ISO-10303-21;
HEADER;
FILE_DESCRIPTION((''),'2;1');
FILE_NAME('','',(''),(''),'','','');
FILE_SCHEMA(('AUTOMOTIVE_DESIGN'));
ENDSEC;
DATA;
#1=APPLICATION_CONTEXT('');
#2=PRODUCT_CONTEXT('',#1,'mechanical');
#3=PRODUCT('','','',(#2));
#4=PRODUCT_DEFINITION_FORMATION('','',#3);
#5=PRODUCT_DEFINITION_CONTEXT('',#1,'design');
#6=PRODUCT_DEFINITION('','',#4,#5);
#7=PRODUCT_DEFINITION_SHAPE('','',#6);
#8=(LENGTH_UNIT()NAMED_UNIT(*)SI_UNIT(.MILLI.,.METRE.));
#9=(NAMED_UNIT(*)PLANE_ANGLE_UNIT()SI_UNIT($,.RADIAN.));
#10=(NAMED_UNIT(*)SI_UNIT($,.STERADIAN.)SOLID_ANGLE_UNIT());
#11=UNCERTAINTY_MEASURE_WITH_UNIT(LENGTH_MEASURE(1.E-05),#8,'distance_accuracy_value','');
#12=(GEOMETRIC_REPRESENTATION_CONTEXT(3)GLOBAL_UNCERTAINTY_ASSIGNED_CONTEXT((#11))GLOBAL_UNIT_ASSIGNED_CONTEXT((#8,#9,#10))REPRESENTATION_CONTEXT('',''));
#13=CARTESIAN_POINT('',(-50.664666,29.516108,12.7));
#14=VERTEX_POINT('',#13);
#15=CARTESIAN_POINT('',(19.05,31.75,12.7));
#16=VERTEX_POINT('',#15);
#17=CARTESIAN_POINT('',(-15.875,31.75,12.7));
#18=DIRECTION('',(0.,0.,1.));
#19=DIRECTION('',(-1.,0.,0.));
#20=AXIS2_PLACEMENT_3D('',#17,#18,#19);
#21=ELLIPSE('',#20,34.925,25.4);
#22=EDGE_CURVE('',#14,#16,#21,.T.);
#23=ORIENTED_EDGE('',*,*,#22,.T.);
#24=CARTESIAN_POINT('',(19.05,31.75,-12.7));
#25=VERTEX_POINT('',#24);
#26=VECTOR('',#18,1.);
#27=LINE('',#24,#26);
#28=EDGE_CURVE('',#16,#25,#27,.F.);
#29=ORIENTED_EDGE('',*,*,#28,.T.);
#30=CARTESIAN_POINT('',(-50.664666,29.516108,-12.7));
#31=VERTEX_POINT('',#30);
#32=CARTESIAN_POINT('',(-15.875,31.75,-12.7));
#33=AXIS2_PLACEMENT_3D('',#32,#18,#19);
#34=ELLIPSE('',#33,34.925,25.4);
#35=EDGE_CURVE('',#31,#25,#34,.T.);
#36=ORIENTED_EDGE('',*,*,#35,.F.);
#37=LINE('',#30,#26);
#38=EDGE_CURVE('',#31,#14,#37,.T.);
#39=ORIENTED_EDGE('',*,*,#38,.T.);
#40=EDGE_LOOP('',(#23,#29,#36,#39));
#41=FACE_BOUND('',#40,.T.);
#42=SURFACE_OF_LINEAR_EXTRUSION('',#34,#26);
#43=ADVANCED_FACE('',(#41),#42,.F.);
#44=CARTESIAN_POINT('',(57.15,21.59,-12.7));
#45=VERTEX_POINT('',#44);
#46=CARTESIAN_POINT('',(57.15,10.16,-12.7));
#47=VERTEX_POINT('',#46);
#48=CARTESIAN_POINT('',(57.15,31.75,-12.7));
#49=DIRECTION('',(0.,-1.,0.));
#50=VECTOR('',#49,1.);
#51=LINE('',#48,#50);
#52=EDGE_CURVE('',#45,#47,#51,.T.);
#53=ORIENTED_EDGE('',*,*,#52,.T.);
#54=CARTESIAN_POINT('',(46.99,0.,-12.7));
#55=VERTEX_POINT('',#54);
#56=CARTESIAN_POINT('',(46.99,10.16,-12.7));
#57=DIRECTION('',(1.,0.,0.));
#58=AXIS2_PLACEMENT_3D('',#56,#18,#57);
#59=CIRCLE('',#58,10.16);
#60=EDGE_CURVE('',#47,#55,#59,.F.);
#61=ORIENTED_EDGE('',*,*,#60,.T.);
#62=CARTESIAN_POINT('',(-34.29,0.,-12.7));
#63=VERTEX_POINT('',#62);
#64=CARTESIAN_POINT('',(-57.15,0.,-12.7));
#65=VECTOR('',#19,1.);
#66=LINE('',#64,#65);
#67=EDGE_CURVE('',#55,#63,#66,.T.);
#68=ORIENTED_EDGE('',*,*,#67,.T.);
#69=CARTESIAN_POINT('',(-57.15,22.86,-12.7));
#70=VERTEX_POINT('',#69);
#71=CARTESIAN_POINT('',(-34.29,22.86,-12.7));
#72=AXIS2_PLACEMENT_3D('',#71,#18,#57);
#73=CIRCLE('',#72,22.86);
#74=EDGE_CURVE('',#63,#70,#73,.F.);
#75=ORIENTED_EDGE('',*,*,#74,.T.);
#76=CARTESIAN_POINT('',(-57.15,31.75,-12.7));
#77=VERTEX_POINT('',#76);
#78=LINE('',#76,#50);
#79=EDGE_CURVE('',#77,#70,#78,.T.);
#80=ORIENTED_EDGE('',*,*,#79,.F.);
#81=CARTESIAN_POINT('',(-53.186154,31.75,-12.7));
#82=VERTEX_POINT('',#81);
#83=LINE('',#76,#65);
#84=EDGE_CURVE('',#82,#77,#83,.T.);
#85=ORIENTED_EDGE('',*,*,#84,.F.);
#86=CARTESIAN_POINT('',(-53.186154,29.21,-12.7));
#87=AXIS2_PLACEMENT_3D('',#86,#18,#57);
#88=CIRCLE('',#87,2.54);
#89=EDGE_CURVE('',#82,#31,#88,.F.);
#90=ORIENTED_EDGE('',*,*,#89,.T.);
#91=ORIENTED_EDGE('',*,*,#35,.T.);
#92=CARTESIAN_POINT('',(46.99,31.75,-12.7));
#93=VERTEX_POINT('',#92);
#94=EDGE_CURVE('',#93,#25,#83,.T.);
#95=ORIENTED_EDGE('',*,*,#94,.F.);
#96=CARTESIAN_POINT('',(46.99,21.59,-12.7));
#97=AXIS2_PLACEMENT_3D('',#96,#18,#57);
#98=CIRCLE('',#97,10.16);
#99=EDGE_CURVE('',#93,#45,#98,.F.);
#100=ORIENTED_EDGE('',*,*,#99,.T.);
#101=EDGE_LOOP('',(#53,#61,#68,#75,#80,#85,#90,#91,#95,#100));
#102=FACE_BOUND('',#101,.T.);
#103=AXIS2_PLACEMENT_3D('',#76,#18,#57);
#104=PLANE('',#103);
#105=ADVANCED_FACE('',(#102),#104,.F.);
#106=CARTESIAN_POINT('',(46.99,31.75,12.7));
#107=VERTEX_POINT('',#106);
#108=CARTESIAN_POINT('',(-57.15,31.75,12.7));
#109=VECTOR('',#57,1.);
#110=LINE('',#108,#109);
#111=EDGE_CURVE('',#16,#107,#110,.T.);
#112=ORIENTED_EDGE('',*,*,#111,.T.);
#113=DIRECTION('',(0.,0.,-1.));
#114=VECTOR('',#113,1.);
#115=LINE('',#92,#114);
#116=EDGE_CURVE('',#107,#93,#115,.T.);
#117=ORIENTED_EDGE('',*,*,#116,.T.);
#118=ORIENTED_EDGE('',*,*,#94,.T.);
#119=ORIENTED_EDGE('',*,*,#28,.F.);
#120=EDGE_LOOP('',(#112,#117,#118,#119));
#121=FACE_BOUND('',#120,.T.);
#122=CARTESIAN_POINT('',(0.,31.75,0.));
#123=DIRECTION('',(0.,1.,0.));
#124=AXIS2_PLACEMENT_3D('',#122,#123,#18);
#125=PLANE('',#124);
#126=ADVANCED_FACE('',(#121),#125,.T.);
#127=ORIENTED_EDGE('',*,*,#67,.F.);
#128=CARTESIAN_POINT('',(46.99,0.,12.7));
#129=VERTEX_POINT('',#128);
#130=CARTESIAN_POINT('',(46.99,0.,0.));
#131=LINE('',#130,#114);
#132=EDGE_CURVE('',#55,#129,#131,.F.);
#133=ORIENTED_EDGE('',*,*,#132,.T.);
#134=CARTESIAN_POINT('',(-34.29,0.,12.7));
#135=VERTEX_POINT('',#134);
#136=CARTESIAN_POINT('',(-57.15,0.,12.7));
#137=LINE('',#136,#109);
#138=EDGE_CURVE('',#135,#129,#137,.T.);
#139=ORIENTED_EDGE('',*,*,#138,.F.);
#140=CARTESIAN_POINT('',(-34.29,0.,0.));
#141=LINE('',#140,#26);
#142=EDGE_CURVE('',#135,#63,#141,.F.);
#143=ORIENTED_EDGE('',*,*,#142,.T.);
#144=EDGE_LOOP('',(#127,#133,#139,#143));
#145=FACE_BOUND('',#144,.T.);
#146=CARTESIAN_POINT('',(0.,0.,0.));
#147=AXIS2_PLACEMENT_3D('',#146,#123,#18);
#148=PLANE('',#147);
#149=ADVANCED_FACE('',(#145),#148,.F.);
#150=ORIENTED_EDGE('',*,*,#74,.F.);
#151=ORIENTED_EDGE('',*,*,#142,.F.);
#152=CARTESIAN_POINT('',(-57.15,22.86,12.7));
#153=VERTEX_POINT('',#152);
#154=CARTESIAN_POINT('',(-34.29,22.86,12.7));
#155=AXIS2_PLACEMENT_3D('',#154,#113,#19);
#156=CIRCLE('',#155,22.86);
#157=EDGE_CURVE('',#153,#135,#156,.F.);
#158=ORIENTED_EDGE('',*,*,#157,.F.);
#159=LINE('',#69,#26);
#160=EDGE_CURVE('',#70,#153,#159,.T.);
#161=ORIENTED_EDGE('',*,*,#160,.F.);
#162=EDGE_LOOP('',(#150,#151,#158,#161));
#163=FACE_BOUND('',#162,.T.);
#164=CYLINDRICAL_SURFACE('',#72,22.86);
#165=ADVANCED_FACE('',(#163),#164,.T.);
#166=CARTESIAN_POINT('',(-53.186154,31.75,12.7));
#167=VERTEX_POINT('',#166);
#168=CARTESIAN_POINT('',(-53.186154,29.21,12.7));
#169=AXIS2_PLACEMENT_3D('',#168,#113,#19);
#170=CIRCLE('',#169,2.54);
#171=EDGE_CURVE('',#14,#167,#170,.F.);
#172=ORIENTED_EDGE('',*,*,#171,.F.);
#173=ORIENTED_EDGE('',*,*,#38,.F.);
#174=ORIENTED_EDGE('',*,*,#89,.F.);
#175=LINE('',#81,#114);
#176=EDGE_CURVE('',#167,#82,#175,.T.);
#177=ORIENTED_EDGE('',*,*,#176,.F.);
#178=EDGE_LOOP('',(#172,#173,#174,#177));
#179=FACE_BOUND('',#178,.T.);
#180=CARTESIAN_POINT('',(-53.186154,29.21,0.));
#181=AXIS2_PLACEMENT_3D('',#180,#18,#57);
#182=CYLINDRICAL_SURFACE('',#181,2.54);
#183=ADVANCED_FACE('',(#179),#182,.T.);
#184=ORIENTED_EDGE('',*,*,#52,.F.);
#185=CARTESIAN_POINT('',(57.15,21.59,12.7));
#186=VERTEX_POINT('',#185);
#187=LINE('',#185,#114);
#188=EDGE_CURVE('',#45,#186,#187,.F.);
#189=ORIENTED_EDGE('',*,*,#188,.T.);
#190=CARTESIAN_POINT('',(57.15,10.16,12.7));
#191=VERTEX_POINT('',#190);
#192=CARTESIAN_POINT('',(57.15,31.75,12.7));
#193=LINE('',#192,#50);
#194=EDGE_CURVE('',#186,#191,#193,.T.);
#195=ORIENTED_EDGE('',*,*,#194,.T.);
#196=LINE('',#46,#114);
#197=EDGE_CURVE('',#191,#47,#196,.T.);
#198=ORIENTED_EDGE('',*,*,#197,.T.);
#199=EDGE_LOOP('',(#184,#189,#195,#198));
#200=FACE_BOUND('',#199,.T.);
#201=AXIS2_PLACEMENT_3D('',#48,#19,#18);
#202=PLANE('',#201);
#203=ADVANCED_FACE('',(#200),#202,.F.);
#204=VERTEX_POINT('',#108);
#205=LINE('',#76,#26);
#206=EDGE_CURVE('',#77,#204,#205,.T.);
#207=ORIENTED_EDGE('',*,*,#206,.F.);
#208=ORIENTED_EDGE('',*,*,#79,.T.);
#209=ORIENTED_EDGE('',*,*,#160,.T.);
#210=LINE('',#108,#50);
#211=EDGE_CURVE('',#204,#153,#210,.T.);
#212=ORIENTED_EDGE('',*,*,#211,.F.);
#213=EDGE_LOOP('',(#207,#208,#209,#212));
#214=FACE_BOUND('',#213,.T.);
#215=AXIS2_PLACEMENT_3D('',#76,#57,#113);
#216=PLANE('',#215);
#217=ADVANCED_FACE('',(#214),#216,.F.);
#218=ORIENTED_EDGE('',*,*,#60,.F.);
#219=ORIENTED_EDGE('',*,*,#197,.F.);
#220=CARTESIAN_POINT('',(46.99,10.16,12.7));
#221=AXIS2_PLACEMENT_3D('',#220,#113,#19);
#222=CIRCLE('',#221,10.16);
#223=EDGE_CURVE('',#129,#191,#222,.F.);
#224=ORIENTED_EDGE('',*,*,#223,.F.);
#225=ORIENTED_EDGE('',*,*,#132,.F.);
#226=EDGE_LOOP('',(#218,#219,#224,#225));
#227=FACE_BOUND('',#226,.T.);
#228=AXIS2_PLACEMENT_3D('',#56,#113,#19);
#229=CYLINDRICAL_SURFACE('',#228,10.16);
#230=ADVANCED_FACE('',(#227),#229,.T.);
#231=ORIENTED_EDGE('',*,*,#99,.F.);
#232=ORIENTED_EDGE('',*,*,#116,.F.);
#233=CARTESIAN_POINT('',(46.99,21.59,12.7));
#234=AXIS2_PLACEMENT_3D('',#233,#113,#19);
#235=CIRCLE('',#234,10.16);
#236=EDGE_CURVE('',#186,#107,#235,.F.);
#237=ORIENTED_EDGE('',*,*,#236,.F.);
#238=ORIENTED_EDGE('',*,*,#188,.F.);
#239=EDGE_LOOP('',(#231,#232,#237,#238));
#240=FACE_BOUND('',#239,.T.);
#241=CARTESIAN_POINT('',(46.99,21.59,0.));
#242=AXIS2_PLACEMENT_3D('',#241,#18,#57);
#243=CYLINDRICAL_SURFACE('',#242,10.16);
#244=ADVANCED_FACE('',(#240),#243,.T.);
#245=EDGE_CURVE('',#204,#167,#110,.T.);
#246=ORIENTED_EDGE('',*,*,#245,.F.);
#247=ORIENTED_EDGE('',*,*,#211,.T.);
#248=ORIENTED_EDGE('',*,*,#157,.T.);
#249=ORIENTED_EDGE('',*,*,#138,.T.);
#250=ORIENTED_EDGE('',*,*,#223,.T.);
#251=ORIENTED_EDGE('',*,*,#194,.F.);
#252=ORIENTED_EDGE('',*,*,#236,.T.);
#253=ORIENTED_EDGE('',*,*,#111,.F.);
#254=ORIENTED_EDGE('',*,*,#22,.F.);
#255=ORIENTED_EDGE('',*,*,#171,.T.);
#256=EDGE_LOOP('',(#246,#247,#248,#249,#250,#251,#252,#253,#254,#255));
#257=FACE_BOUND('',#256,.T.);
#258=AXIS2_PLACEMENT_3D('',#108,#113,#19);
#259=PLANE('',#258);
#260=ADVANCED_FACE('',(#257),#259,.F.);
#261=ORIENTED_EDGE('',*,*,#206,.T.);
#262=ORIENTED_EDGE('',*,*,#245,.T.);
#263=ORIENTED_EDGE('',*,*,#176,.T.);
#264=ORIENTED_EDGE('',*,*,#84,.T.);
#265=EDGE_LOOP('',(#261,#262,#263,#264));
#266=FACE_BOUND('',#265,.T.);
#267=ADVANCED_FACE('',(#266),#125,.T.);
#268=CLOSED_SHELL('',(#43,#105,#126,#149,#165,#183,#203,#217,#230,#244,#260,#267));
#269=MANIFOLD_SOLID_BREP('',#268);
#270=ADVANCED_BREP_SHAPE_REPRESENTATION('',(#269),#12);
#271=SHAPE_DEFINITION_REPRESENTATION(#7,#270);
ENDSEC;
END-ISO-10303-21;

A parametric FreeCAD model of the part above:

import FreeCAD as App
import Part
import Sketcher

V = App.Vector
Q = App.Units.Quantity


def edges_at(feature, points):
    """Names of the edges that pass closest to the given points."""
    edges = feature.Shape.Edges
    near = lambda p: min(range(len(edges)), key=lambda i: edges[i].distToShape(Part.Vertex(*p))[0])
    return sorted({f"Edge{near(p) + 1}" for p in points})

doc = App.newDocument("Part")
body = doc.addObject("PartDesign::Body", "Body")

# Sketch on XZ plane
sketch1 = doc.addObject("Sketcher::SketchObject", "Sketch")
body.addObject(sketch1)
sketch1.AttachmentSupport = (doc.XZ_Plane, [""])
sketch1.MapMode = "FlatFace"
sketch1.addGeometry([
    Part.LineSegment(V(-57, -13, 0), V(-57, 13, 0)),
    Part.LineSegment(V(-57, 13, 0), V(57, 13, 0)),
    Part.LineSegment(V(57, 13, 0), V(57, -13, 0)),
    Part.LineSegment(V(57, -13, 0), V(-57, -13, 0)),
], False)
sketch1.addConstraint([
    Sketcher.Constraint("Coincident", 0, 2, 1, 1),
    Sketcher.Constraint("Coincident", 1, 2, 2, 1),
    Sketcher.Constraint("Coincident", 2, 2, 3, 1),
    Sketcher.Constraint("Coincident", 3, 2, 0, 1),
    Sketcher.Constraint("Vertical", 0),
    Sketcher.Constraint("Horizontal", 1),
    Sketcher.Constraint("Vertical", 2),
    Sketcher.Constraint("Horizontal", 3),
    Sketcher.Constraint("Symmetric", 0, 2, 2, 2, -1, 1),
    Sketcher.Constraint("DistanceY", 0, 1, 0, 2, Q("1 in")),
    Sketcher.Constraint("DistanceX", 1, 1, 1, 2, Q("4.5 in")),
])
pad1 = doc.addObject("PartDesign::Pad", "Pad")
body.addObject(pad1)
pad1.Profile = sketch1
pad1.Length = Q("1.25 in")
pad1.Reversed = True

# Sketch on XY plane
sketch2 = doc.addObject("Sketcher::SketchObject", "Sketch001")
body.addObject(sketch2)
sketch2.AttachmentSupport = (doc.XY_Plane, [""])
sketch2.MapMode = "FlatFace"
sketch2.AttachmentOffset = App.Placement(V(0, 0, 0.5 * 25.4), App.Rotation())
sketch2.addGeometry(Part.Ellipse(V(-50.8, 31.75, 0), V(-15.875, 6.35, 0), V(-15.875, 31.75, 0)), False)
sketch2.addConstraint(Sketcher.Constraint("Block", 0))
pocket1 = doc.addObject("PartDesign::Pocket", "Pocket")
body.addObject(pocket1)
pocket1.Profile = sketch2
pocket1.Type = "ThroughAll"
doc.recompute()

fillet = doc.addObject("PartDesign::Fillet", "Fillet")
body.addObject(fillet)
fillet.Base = (pocket1, edges_at(pocket1, [(-50.8, 31.75, 0)]))
fillet.Radius = Q("0.1 in")
doc.recompute()

fillet2 = doc.addObject("PartDesign::Fillet", "Fillet001")
body.addObject(fillet2)
fillet2.Base = (fillet, edges_at(fillet, [(-57.15, 0, 0)]))
fillet2.Radius = Q("0.9 in")
doc.recompute()

fillet3 = doc.addObject("PartDesign::Fillet", "Fillet002")
body.addObject(fillet3)
fillet3.Base = (fillet2, edges_at(fillet2, [(57.15, 31.75, 0), (57.15, 0, 0)]))
fillet3.Radius = Q("0.4 in")

doc.recompute()
